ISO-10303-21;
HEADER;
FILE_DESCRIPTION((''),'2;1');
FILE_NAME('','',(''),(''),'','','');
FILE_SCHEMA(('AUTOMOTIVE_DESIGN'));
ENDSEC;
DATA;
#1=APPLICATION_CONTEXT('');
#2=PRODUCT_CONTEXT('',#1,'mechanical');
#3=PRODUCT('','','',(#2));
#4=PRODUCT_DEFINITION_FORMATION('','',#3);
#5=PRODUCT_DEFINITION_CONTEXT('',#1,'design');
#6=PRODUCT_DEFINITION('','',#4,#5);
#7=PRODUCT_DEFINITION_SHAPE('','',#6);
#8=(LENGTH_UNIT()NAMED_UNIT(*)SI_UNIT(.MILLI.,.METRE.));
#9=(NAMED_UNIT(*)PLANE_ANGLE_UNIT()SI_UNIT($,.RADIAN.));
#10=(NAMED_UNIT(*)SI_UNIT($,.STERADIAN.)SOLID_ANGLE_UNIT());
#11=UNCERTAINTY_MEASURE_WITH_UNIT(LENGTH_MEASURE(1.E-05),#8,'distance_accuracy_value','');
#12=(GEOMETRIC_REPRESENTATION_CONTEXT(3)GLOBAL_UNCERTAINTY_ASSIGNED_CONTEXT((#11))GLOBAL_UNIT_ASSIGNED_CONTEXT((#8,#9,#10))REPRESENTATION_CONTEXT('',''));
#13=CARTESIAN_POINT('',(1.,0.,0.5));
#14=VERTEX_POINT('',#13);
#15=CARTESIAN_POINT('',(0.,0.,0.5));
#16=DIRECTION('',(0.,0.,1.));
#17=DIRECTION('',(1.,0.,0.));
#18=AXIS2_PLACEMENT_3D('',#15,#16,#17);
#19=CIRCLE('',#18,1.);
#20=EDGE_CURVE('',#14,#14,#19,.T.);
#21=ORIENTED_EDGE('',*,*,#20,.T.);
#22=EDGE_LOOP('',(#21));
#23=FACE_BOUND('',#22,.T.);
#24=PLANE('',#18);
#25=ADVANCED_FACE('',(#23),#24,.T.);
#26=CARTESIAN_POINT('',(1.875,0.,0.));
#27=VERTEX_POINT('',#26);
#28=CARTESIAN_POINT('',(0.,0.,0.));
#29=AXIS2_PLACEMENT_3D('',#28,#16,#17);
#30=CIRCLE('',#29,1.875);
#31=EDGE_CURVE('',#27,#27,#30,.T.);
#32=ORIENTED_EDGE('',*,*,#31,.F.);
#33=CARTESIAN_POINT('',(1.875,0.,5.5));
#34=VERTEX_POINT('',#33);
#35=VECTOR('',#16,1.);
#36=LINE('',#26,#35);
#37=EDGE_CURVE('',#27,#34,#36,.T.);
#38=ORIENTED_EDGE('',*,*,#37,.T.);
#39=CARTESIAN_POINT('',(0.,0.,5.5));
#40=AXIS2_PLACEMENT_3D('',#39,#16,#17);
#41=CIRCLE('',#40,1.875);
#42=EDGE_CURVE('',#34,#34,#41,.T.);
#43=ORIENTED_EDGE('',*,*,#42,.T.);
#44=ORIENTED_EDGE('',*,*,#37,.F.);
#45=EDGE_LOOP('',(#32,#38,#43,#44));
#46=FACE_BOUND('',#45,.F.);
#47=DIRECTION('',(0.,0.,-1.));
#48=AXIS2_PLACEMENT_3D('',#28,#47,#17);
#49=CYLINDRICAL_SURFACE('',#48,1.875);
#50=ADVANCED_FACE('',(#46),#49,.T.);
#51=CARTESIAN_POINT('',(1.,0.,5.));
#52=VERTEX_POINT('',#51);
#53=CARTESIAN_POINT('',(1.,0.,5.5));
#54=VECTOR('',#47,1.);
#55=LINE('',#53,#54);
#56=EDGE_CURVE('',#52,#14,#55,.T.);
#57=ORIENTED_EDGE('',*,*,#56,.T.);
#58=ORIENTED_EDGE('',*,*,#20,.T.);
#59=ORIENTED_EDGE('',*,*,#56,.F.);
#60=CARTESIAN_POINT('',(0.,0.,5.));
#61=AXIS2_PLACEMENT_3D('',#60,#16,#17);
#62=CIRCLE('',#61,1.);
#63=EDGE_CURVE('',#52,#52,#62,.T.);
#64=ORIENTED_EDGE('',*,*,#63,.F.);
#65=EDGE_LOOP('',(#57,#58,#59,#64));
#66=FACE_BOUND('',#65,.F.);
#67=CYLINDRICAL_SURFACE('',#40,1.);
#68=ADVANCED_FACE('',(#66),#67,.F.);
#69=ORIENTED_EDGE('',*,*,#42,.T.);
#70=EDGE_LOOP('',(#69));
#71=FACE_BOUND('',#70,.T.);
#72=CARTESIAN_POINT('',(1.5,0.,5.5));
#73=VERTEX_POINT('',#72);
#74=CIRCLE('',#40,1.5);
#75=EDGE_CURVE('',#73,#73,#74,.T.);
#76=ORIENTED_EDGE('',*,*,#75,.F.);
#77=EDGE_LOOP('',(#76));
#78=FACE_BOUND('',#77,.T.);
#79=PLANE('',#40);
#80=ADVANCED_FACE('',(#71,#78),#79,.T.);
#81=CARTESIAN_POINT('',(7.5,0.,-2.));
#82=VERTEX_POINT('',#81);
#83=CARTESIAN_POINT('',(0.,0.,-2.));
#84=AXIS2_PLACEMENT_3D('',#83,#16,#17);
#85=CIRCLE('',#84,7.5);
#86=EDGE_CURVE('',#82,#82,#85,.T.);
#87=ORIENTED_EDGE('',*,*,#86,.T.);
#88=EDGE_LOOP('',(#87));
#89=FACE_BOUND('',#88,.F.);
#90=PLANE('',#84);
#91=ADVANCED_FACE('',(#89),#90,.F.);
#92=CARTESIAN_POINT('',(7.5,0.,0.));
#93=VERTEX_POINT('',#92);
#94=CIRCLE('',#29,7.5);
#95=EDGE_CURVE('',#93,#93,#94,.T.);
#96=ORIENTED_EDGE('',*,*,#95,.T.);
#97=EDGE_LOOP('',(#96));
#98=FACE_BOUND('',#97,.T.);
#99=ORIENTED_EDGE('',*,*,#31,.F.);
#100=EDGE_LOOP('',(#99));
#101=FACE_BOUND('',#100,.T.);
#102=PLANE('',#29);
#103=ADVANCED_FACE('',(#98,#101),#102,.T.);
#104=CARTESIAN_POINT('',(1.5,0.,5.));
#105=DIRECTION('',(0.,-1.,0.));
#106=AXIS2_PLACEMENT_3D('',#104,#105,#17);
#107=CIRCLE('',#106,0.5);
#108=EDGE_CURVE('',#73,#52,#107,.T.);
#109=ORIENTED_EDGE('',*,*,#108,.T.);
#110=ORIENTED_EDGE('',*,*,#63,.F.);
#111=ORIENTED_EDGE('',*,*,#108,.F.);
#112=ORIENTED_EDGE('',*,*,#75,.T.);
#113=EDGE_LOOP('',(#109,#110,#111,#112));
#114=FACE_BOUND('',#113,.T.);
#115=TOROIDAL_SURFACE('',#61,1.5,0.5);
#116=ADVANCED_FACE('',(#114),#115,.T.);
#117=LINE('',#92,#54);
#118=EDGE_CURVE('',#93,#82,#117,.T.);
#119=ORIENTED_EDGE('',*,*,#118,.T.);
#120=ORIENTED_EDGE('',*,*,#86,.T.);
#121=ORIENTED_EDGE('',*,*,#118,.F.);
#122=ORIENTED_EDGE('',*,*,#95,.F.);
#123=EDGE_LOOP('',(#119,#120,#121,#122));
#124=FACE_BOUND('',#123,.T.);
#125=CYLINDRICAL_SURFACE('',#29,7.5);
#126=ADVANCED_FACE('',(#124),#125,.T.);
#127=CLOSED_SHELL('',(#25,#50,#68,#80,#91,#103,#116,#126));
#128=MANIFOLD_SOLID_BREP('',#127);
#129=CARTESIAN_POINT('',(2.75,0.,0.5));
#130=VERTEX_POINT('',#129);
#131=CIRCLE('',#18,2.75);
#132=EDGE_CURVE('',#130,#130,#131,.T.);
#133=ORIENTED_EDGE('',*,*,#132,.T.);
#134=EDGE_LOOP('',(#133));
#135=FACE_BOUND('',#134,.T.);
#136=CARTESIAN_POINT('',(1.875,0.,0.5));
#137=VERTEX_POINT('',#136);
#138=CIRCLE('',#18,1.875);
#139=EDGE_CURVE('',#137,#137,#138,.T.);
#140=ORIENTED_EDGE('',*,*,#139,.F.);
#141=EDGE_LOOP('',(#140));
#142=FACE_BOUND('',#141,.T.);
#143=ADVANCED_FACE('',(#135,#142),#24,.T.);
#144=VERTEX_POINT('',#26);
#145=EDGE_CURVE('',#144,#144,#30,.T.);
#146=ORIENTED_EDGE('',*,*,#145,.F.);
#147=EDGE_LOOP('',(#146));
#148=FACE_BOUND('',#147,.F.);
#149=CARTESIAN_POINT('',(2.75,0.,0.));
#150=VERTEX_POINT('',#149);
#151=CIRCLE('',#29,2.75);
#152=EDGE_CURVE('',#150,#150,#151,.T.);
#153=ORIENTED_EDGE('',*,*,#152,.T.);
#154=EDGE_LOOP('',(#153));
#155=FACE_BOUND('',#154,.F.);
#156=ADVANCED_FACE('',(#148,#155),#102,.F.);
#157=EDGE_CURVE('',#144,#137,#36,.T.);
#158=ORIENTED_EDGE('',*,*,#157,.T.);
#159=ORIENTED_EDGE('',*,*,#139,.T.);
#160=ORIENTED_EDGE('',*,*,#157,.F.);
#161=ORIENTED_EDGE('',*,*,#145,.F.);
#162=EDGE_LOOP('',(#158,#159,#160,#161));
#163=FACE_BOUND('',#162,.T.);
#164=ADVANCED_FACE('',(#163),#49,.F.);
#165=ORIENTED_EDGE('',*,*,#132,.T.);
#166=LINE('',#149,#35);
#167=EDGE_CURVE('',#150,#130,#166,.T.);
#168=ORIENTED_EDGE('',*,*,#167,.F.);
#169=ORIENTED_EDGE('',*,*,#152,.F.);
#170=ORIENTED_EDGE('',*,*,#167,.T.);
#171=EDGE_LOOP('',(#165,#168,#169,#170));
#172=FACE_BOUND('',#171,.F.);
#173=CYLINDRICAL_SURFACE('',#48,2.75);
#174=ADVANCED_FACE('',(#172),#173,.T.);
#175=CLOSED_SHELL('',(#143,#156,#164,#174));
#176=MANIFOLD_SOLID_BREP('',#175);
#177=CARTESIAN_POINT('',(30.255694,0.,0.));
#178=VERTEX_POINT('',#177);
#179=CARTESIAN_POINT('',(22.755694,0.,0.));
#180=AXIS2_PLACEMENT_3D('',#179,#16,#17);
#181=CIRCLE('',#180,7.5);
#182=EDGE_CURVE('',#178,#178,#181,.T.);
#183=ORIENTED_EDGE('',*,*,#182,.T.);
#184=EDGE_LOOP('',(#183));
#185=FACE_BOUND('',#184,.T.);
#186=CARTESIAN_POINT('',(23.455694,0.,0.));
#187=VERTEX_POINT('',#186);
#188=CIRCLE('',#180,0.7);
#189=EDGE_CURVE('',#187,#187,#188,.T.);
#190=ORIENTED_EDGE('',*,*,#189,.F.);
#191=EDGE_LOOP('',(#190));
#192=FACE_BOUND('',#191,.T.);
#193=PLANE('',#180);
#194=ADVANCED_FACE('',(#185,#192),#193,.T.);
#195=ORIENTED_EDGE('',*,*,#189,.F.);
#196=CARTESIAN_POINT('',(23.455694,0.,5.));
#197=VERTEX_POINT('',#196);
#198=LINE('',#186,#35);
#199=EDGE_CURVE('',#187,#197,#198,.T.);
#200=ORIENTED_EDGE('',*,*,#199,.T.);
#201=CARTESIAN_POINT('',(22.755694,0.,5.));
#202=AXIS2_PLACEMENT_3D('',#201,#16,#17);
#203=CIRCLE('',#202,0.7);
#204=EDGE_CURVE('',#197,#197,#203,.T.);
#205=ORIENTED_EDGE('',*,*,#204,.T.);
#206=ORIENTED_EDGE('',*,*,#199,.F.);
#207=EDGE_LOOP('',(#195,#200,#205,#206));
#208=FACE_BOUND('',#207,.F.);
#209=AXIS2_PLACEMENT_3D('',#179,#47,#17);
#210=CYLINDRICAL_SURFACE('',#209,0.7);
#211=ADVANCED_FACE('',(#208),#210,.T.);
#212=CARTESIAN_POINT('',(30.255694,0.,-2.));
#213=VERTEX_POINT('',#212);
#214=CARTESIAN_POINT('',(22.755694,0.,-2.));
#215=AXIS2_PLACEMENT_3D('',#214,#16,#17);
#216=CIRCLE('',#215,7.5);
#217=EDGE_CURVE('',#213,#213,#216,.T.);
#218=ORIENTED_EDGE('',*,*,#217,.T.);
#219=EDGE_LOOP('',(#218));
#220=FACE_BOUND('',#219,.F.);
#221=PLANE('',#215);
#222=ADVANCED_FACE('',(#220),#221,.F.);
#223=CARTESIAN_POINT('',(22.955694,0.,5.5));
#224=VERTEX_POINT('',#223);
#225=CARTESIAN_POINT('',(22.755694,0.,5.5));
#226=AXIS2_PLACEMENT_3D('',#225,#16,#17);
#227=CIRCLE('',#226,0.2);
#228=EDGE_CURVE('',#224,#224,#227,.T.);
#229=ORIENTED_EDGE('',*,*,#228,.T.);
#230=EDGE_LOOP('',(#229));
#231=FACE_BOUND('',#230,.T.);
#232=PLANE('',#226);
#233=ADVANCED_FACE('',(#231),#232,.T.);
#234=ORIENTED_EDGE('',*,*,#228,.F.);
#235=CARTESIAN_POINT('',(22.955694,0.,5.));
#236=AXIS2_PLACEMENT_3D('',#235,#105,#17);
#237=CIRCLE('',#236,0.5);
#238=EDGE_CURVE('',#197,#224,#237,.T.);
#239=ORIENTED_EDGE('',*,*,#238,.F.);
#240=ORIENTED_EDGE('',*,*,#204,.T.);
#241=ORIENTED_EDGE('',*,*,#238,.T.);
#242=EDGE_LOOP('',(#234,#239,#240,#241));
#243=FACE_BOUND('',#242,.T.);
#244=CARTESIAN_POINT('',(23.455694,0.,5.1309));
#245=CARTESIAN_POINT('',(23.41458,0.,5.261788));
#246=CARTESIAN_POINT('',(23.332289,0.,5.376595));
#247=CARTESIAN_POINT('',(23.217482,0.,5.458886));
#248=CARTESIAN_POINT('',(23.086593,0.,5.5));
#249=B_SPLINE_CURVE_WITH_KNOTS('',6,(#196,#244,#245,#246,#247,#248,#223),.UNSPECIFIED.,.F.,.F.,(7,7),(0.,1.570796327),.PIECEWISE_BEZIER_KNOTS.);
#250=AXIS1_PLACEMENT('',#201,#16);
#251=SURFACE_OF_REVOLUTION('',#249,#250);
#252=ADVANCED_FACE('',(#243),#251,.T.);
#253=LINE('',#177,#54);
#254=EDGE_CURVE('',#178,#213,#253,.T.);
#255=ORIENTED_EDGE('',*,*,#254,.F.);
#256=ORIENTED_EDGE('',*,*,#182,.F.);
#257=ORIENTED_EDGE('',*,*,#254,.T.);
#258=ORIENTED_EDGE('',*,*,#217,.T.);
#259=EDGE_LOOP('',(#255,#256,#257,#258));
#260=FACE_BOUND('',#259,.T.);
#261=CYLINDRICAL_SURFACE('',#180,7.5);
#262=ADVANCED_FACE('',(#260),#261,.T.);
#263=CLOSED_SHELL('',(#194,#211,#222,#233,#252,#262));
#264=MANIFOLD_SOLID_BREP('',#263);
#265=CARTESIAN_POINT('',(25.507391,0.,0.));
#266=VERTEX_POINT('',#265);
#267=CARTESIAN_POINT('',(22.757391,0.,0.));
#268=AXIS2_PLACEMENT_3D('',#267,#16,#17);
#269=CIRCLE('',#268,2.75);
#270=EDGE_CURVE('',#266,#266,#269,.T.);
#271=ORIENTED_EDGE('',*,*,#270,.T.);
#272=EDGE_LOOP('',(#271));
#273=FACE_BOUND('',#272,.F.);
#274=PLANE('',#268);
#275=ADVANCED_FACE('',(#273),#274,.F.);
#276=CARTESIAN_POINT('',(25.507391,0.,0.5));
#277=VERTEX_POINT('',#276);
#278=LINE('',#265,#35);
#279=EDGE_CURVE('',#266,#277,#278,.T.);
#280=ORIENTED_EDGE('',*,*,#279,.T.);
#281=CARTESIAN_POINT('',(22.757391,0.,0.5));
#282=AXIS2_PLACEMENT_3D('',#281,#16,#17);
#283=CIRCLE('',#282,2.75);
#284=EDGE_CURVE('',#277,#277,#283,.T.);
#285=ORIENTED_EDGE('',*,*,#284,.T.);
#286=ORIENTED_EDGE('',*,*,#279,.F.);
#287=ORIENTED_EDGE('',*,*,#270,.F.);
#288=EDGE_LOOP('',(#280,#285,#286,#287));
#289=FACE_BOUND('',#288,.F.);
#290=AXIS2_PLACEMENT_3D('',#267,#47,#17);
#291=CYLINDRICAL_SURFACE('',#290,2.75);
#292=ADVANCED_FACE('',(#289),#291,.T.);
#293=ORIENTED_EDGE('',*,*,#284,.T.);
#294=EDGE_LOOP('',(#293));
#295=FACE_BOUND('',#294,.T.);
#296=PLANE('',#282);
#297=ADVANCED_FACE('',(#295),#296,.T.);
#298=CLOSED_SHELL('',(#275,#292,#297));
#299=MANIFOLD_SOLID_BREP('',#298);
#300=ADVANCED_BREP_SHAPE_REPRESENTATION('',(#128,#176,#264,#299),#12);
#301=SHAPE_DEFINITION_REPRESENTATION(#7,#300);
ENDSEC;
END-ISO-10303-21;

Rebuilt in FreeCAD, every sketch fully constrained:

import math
import FreeCAD as App
import Part
import Sketcher

V = App.Vector
Q = App.Units.Quantity


def edges_at(feature, points):
    """Names of the edges that pass closest to the given points."""
    edges = feature.Shape.Edges
    near = lambda p: min(range(len(edges)), key=lambda i: edges[i].distToShape(Part.Vertex(*p))[0])
    return sorted({f"Edge{near(p) + 1}" for p in points})

doc = App.newDocument("Part")
params = doc.addObject("Spreadsheet::Sheet", "Params")
for row, (alias, value) in enumerate([
    ("sketch1_diameter", "15 mm"),
    ("pad1_length", "2 mm"),
    ("sketch2_diameter", "3.75 mm"),
    ("pad2_length", "5.5 mm"),
    ("sketch3_diameter", "2 mm"),
    ("pocket1_length", "5 mm"),
    ("fillet_radius", "0.5 mm"),
    ("sketch4_radius", "23 mm"),
    ("groove_angle", "360 deg"),
    ("sketch5_radius", "23 mm"),
    ("groove2_angle", "360 deg"),
    ("sketch6_diameter", "15 mm"),
    ("pad3_length", "2 mm"),
    ("sketch7_diameter", "1.4 mm"),
    ("pad4_length", "5.5 mm"),
    ("fillet2_radius", "0.5 mm"),
    ("sketch8_diameter", "5.5 mm"),
    ("sketch8_diameter2", "3.75 mm"),
    ("pad5_length", "0.5 mm"),
    ("sketch9_diameter", "5.5 mm"),
    ("pad6_length", "0.5 mm"),
], start=1):
    params.set(f"A{row}", alias)
    params.set(f"B{row}", "=" + value)
    params.setAlias(f"B{row}", alias)

body = doc.addObject("PartDesign::Body", "Body")

# Sketch on XY plane
sketch1 = body.newObject("Sketcher::SketchObject", "Sketch")
sketch1.AttachmentSupport = (doc.getObject("XY_Plane"), [""])
sketch1.MapMode = "FlatFace"
sketch1.addGeometry(Part.Circle(V(0, 0, 0), V(0, 0, 1), 8), False)
sketch1.addConstraint([
    Sketcher.Constraint("Coincident", 0, 3, -1, 1),
    Sketcher.Constraint("Diameter", 0, Q("15 mm")),
])
sketch1.setExpression("Constraints[1]", "Params.sketch1_diameter")
pad1 = body.newObject("PartDesign::Pad", "Pad")
pad1.Profile = sketch1
pad1.setExpression("Length", "Params.pad1_length")
pad1.Reversed = True

# Sketch on XY plane
sketch2 = body.newObject("Sketcher::SketchObject", "Sketch001")
sketch2.AttachmentSupport = (doc.getObject("XY_Plane"), [""])
sketch2.MapMode = "FlatFace"
sketch2.addGeometry(Part.Circle(V(0, 0, 0), V(0, 0, 1), 1.9), False)
sketch2.addConstraint([
    Sketcher.Constraint("Coincident", 0, 3, -1, 1),
    Sketcher.Constraint("Diameter", 0, Q("3.75 mm")),
])
sketch2.setExpression("Constraints[1]", "Params.sketch2_diameter")
pad2 = body.newObject("PartDesign::Pad", "Pad001")
pad2.Profile = sketch2
pad2.setExpression("Length", "Params.pad2_length")

# Sketch on XY plane
sketch3 = body.newObject("Sketcher::SketchObject", "Sketch002")
sketch3.AttachmentSupport = (doc.getObject("XY_Plane"), [""])
sketch3.MapMode = "FlatFace"
sketch3.AttachmentOffset = App.Placement(V(0, 0, 5.5), App.Rotation())
sketch3.addGeometry(Part.Circle(V(0, 0, 0), V(0, 0, 1), 1), False)
sketch3.addConstraint([
    Sketcher.Constraint("Coincident", 0, 3, -1, 1),
    Sketcher.Constraint("Diameter", 0, Q("2 mm")),
])
sketch3.setExpression("Constraints[1]", "Params.sketch3_diameter")
pocket1 = body.newObject("PartDesign::Pocket", "Pocket")
pocket1.Profile = sketch3
pocket1.setExpression("Length", "Params.pocket1_length")
doc.recompute()

fillet = body.newObject("PartDesign::Fillet", "Fillet")
fillet.Base = (pocket1, edges_at(pocket1, [(-1, 0, 5.5)]))
fillet.setExpression("Radius", "Params.fillet_radius")

# Sketch on XY plane
sketch4 = body.newObject("Sketcher::SketchObject", "Sketch003")
sketch4.AttachmentSupport = (doc.getObject("XY_Plane"), [""])
sketch4.MapMode = "FlatFace"
sketch4.AttachmentOffset = App.Placement(V(0, 0, -25), App.Rotation())
sketch4.addGeometry([
    Part.LineSegment(V(0, 23, 0), V(0, -23, 0)),
    Part.ArcOfCircle(Part.Circle(V(0, 0, 0), V(0, 0, 1), 23), math.radians(-90), math.radians(90)),
], False)
sketch4.addConstraint([
    Sketcher.Constraint("Coincident", 0, 1, 1, 2),
    Sketcher.Constraint("Coincident", 1, 1, 0, 2),
    Sketcher.Constraint("Vertical", 0),
    Sketcher.Constraint("Coincident", 1, 3, -1, 1),
    Sketcher.Constraint("PointOnObject", 0, 1, -2),
    Sketcher.Constraint("Radius", 1, Q("23 mm")),
])
sketch4.setExpression("Constraints[5]", "Params.sketch4_radius")
groove = body.newObject("PartDesign::Groove", "Groove")
groove.Profile = sketch4
groove.ReferenceAxis = (sketch4, ["V_Axis"])
groove.setExpression("Angle", "Params.groove_angle")

# Sketch on XY plane
sketch5 = body.newObject("Sketcher::SketchObject", "Sketch004")
sketch5.AttachmentSupport = (doc.getObject("XY_Plane"), [""])
sketch5.MapMode = "FlatFace"
sketch5.AttachmentOffset = App.Placement(V(0, 0, -25), App.Rotation())
sketch5.addGeometry([
    Part.LineSegment(V(23, 23, 0), V(23, -23, 0)),
    Part.ArcOfCircle(Part.Circle(V(23, 0, 0), V(0, 0, 1), 23), math.radians(-90), math.radians(90)),
], False)
sketch5.addGeometry(Part.LineSegment(V(23, -23, 0), V(23, 23, 0)), True)  # axis
sketch5.addConstraint([
    Sketcher.Constraint("Coincident", 0, 1, 1, 2),
    Sketcher.Constraint("Coincident", 1, 1, 0, 2),
    Sketcher.Constraint("Vertical", 0),
    Sketcher.Constraint("Vertical", 2),
    Sketcher.Constraint("Coincident", 2, 1, 1, 1),
    Sketcher.Constraint("PointOnObject", 1, 3, -1),
    Sketcher.Constraint("Vertical", 1, 3, 0, 1),
    Sketcher.Constraint("Equal", 0, 2),
    Sketcher.Constraint("Radius", 1, Q("23 mm")),
    Sketcher.Constraint("DistanceX", -1, 1, 1, 3, Q("22.755694 mm")),
])
sketch5.setExpression("Constraints[8]", "Params.sketch5_radius")
groove2 = body.newObject("PartDesign::Groove", "Groove001")
groove2.Profile = sketch5
groove2.ReferenceAxis = (sketch5, ["Axis0"])
groove2.setExpression("Angle", "Params.groove2_angle")
body2 = doc.addObject("PartDesign::Body", "Body001")

# Sketch on XY plane
sketch6 = body2.newObject("Sketcher::SketchObject", "Sketch005")
sketch6.AttachmentSupport = (doc.getObject("XY_Plane001"), [""])
sketch6.MapMode = "FlatFace"
sketch6.addGeometry(Part.Circle(V(23, 0, 0), V(0, 0, 1), 8), False)
sketch6.addConstraint([
    Sketcher.Constraint("PointOnObject", 0, 3, -1),
    Sketcher.Constraint("Diameter", 0, Q("15 mm")),
    Sketcher.Constraint("DistanceX", -1, 1, 0, 3, Q("22.755694 mm")),
])
sketch6.setExpression("Constraints[1]", "Params.sketch6_diameter")
pad3 = body2.newObject("PartDesign::Pad", "Pad002")
pad3.Profile = sketch6
pad3.setExpression("Length", "Params.pad3_length")
pad3.Reversed = True

# Sketch on XY plane
sketch7 = body2.newObject("Sketcher::SketchObject", "Sketch006")
sketch7.AttachmentSupport = (doc.getObject("XY_Plane001"), [""])
sketch7.MapMode = "FlatFace"
sketch7.addGeometry(Part.Circle(V(22.8, 0, 0), V(0, 0, 1), 0.7), False)
sketch7.addConstraint([
    Sketcher.Constraint("PointOnObject", 0, 3, -1),
    Sketcher.Constraint("Diameter", 0, Q("1.4 mm")),
    Sketcher.Constraint("DistanceX", -1, 1, 0, 3, Q("22.755694 mm")),
])
sketch7.setExpression("Constraints[1]", "Params.sketch7_diameter")
pad4 = body2.newObject("PartDesign::Pad", "Pad003")
pad4.Profile = sketch7
pad4.setExpression("Length", "Params.pad4_length")
doc.recompute()

fillet2 = body2.newObject("PartDesign::Fillet", "Fillet001")
fillet2.Base = (pad4, edges_at(pad4, [(22.056, 0, 5.5)]))
fillet2.setExpression("Radius", "Params.fillet2_radius")
body3 = doc.addObject("PartDesign::Body", "Body002")

# Sketch on XY plane
sketch8 = body3.newObject("Sketcher::SketchObject", "Sketch007")
sketch8.AttachmentSupport = (doc.getObject("XY_Plane002"), [""])
sketch8.MapMode = "FlatFace"
sketch8.addGeometry([
    Part.Circle(V(0, 0, 0), V(0, 0, 1), 2.8),
    Part.Circle(V(0, 0, 0), V(0, 0, 1), 1.9),
], False)
sketch8.addConstraint([
    Sketcher.Constraint("Coincident", 0, 3, -1, 1),
    Sketcher.Constraint("Coincident", 1, 3, -1, 1),
    Sketcher.Constraint("Diameter", 0, Q("5.5 mm")),
    Sketcher.Constraint("Diameter", 1, Q("3.75 mm")),
])
sketch8.setExpression("Constraints[2]", "Params.sketch8_diameter")
sketch8.setExpression("Constraints[3]", "Params.sketch8_diameter2")
pad5 = body3.newObject("PartDesign::Pad", "Pad004")
pad5.Profile = sketch8
pad5.setExpression("Length", "Params.pad5_length")
body4 = doc.addObject("PartDesign::Body", "Body003")

# Sketch on XY plane
sketch9 = body4.newObject("Sketcher::SketchObject", "Sketch008")
sketch9.AttachmentSupport = (doc.getObject("XY_Plane003"), [""])
sketch9.MapMode = "FlatFace"
sketch9.addGeometry(Part.Circle(V(22.8, 0, 0), V(0, 0, 1), 2.8), False)
sketch9.addConstraint([
    Sketcher.Constraint("PointOnObject", 0, 3, -1),
    Sketcher.Constraint("Diameter", 0, Q("5.5 mm")),
    Sketcher.Constraint("DistanceX", -1, 1, 0, 3, Q("22.757391 mm")),
])
sketch9.setExpression("Constraints[1]", "Params.sketch9_diameter")
pad6 = body4.newObject("PartDesign::Pad", "Pad005")
pad6.Profile = sketch9
pad6.setExpression("Length", "Params.pad6_length")

doc.recompute()
